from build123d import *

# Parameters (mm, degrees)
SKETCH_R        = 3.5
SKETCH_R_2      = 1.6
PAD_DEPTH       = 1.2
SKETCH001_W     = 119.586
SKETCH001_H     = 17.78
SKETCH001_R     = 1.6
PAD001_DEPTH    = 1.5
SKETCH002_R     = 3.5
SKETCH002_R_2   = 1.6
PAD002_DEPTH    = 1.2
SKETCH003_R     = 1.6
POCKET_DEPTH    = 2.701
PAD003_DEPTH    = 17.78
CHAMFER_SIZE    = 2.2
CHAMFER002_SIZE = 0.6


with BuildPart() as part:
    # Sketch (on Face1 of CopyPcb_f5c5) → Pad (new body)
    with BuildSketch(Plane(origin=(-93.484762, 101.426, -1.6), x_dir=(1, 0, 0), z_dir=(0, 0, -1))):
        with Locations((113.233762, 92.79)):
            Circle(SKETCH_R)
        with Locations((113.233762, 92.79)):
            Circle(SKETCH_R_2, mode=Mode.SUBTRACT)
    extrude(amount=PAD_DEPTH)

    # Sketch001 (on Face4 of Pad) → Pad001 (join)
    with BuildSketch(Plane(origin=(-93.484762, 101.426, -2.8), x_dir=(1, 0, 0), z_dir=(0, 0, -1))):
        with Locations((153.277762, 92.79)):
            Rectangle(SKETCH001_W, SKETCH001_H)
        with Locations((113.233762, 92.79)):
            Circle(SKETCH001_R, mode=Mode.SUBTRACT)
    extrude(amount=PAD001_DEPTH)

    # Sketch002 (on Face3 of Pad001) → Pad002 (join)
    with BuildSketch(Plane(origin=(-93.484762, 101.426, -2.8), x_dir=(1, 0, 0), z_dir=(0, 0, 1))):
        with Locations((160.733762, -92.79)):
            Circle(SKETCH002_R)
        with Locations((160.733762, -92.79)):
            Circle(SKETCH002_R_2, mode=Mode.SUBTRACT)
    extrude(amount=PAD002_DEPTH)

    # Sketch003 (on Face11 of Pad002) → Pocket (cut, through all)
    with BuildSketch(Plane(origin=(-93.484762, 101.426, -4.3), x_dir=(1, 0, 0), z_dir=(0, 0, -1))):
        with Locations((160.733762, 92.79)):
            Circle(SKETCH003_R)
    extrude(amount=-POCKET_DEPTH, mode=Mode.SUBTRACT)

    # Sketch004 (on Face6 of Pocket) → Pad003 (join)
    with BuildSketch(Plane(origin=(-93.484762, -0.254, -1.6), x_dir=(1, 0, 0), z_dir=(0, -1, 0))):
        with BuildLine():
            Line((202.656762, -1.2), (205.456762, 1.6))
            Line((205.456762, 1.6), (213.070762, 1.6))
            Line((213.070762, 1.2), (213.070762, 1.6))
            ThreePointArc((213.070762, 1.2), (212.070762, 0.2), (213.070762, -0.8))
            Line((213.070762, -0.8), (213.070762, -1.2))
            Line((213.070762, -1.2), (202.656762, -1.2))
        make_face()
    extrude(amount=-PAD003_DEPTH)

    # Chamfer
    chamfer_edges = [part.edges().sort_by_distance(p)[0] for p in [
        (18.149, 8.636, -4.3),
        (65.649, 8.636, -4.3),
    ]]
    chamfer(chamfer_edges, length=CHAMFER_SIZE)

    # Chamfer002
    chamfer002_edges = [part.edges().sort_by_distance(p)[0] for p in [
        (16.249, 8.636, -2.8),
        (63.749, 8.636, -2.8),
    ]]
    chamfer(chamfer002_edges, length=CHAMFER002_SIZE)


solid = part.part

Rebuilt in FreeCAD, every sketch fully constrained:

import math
import FreeCAD as App
import Part
import Sketcher
Q = App.Units.Quantity


def edges_at(feature, points):
    """Names of the edges that pass closest to the given points."""
    edges = feature.Shape.Edges
    near = lambda p: min(range(len(edges)), key=lambda i: edges[i].distToShape(Part.Vertex(*p))[0])
    return sorted({f"Edge{near(p) + 1}" for p in points})


def add_polygon(sketch, points):
    """Adds a closed chain of lines whose ends are joined by coincident constraints."""
    first, n = sketch.GeometryCount, len(points)
    for a, b in zip(points, points[1:] + points[:1]):
        sketch.addGeometry(Part.LineSegment(App.Vector(*a, 0), App.Vector(*b, 0)), False)
    for i in range(n):
        sketch.addConstraint(Sketcher.Constraint("Coincident", first + i, 2, first + (i + 1) % n, 1))

doc = App.newDocument("Part")
body = doc.addObject("PartDesign::Body", "Body")

sketch1 = body.newObject("Sketcher::SketchObject", "Sketch")
sketch1.AttachmentSupport = (doc.getObject("XY_Plane"), [""])
sketch1.MapMode = "FlatFace"
sketch1.AttachmentOffset = App.Placement(App.Vector(0, 0, -1.6), App.Rotation())
sketch1.addGeometry([
    Part.Circle(App.Vector(19.7, 8.6, 0), App.Vector(0, 0, 1), 3.5),
    Part.Circle(App.Vector(19.7, 8.6, 0), App.Vector(0, 0, 1), 1.6),
], False)
sketch1.addConstraint([
    Sketcher.Constraint("Coincident", 1, 3, 0, 3),
    Sketcher.Constraint("Diameter", 0, Q("7 mm")),
    Sketcher.Constraint("Diameter", 1, Q("3.2 mm")),
    Sketcher.Constraint("DistanceX", -1, 1, 0, 3, Q("19.749 mm")),
    Sketcher.Constraint("DistanceY", -1, 1, 0, 3, Q("8.636 mm")),
])
pad1 = body.newObject("PartDesign::Pad", "Pad")
pad1.Profile = sketch1
pad1.Length = 1.2
pad1.Reversed = True

sketch2 = body.newObject("Sketcher::SketchObject", "Sketch001")
sketch2.AttachmentSupport = (doc.getObject("XY_Plane"), [""])
sketch2.MapMode = "FlatFace"
sketch2.AttachmentOffset = App.Placement(App.Vector(0, 0, -2.8), App.Rotation())
add_polygon(sketch2, [(0, -0.3), (0, 17.5), (119.6, 17.5), (119.6, -0.3)])
sketch2.addGeometry(Part.Circle(App.Vector(19.7, 8.6, 0), App.Vector(0, 0, 1), 1.6), False)
sketch2.addConstraint([
    Sketcher.Constraint("Vertical", 0),
    Sketcher.Constraint("Horizontal", 1),
    Sketcher.Constraint("Vertical", 2),
    Sketcher.Constraint("Horizontal", 3),
    Sketcher.Constraint("PointOnObject", 0, 2, -2),
    Sketcher.Constraint("Diameter", 4, Q("3.2 mm")),
    Sketcher.Constraint("DistanceY", 0, 1, 0, 2, Q("17.78 mm")),
    Sketcher.Constraint("DistanceX", 1, 1, 1, 2, Q("119.586 mm")),
    Sketcher.Constraint("DistanceY", 4, 3, 0, 2, Q("8.89 mm")),
    Sketcher.Constraint("DistanceX", -1, 1, 4, 3, Q("19.749 mm")),
    Sketcher.Constraint("DistanceY", -1, 1, 4, 3, Q("8.636 mm")),
])
pad2 = body.newObject("PartDesign::Pad", "Pad001")
pad2.Profile = sketch2
pad2.Length = 1.5
pad2.Reversed = True

sketch3 = body.newObject("Sketcher::SketchObject", "Sketch002")
sketch3.AttachmentSupport = (doc.getObject("XY_Plane"), [""])
sketch3.MapMode = "FlatFace"
sketch3.AttachmentOffset = App.Placement(App.Vector(0, 0, -2.8), App.Rotation())
sketch3.addGeometry([
    Part.Circle(App.Vector(67.2, 8.6, 0), App.Vector(0, 0, 1), 3.5),
    Part.Circle(App.Vector(67.2, 8.6, 0), App.Vector(0, 0, 1), 1.6),
], False)
sketch3.addConstraint([
    Sketcher.Constraint("Coincident", 1, 3, 0, 3),
    Sketcher.Constraint("Diameter", 0, Q("7 mm")),
    Sketcher.Constraint("Diameter", 1, Q("3.2 mm")),
    Sketcher.Constraint("DistanceX", -1, 1, 0, 3, Q("67.249 mm")),
    Sketcher.Constraint("DistanceY", -1, 1, 0, 3, Q("8.636 mm")),
])
pad3 = body.newObject("PartDesign::Pad", "Pad002")
pad3.Profile = sketch3
pad3.Length = 1.2

sketch4 = body.newObject("Sketcher::SketchObject", "Sketch003")
sketch4.AttachmentSupport = (doc.getObject("XY_Plane"), [""])
sketch4.MapMode = "FlatFace"
sketch4.AttachmentOffset = App.Placement(App.Vector(0, 0, -4.3), App.Rotation())
sketch4.addGeometry(Part.Circle(App.Vector(67.2, 8.6, 0), App.Vector(0, 0, 1), 1.6), False)
sketch4.addConstraint([
    Sketcher.Constraint("Diameter", 0, Q("3.2 mm")),
    Sketcher.Constraint("DistanceX", -1, 1, 0, 3, Q("67.249 mm")),
    Sketcher.Constraint("DistanceY", -1, 1, 0, 3, Q("8.636 mm")),
])
pocket1 = body.newObject("PartDesign::Pocket", "Pocket")
pocket1.Profile = sketch4
pocket1.Type = "ThroughAll"
pocket1.Reversed = True

sketch5 = body.newObject("Sketcher::SketchObject", "Sketch004")
sketch5.AttachmentSupport = (doc.getObject("XZ_Plane"), [""])
sketch5.MapMode = "FlatFace"
sketch5.AttachmentOffset = App.Placement(App.Vector(0, 0, 0.254), App.Rotation())
sketch5.addGeometry([
    Part.LineSegment(App.Vector(111.97, 0, 0), App.Vector(109.17, -2.8, 0)),
    Part.LineSegment(App.Vector(109.17, -2.8, 0), App.Vector(119.59, -2.8, 0)),
    Part.LineSegment(App.Vector(119.59, -2.8, 0), App.Vector(119.59, -2.4, 0)),
    Part.ArcOfCircle(Part.Circle(App.Vector(119.59, -1.4, 0), App.Vector(0, 0, 1), 1), math.radians(90), math.radians(270)),
    Part.LineSegment(App.Vector(119.59, -0.4, 0), App.Vector(119.59, 0, 0)),
    Part.LineSegment(App.Vector(119.59, 0, 0), App.Vector(111.97, 0, 0)),
], False)
sketch5.addConstraint([
    Sketcher.Constraint("Coincident", 0, 2, 1, 1),
    Sketcher.Constraint("Coincident", 1, 2, 2, 1),
    Sketcher.Constraint("Coincident", 2, 2, 3, 2),
    Sketcher.Constraint("Coincident", 3, 1, 4, 1),
    Sketcher.Constraint("Coincident", 4, 2, 5, 1),
    Sketcher.Constraint("Coincident", 5, 2, 0, 1),
    Sketcher.Constraint("Horizontal", 1),
    Sketcher.Constraint("Vertical", 2),
    Sketcher.Constraint("Vertical", 4),
    Sketcher.Constraint("Horizontal", 5),
    Sketcher.Constraint("PointOnObject", 4, 2, -1),
    Sketcher.Constraint("Vertical", 3, 3, 1, 2),
    Sketcher.Constraint("Vertical", 2, 2, 3, 1),
    Sketcher.Constraint("Equal", 2, 4),
    Sketcher.Constraint("Radius", 3, Q("1 mm")),
    Sketcher.Constraint("Angle", 0, Q("-135 deg")),
    Sketcher.Constraint("DistanceY", 2, 1, 2, 2, Q("0.4 mm")),
    Sketcher.Constraint("DistanceX", 1, 1, 1, 2, Q("10.414 mm")),
    Sketcher.Constraint("DistanceX", -1, 1, 3, 3, Q("119.586 mm")),
])
pad4 = body.newObject("PartDesign::Pad", "Pad003")
pad4.Profile = sketch5
pad4.Length = 17.78
pad4.Reversed = True
doc.recompute()

chamfer = body.newObject("PartDesign::Chamfer", "Chamfer")
chamfer.Base = (pad4, edges_at(pad4, [(18.149, 8.636, -4.3), (65.649, 8.636, -4.3)]))
chamfer.Size = 2.2
doc.recompute()

chamfer2 = body.newObject("PartDesign::Chamfer", "Chamfer001")
chamfer2.Base = (chamfer, edges_at(chamfer, [(16.249, 8.636, -2.8), (63.749, 8.636, -2.8)]))
chamfer2.Size = 0.6

doc.recompute()
